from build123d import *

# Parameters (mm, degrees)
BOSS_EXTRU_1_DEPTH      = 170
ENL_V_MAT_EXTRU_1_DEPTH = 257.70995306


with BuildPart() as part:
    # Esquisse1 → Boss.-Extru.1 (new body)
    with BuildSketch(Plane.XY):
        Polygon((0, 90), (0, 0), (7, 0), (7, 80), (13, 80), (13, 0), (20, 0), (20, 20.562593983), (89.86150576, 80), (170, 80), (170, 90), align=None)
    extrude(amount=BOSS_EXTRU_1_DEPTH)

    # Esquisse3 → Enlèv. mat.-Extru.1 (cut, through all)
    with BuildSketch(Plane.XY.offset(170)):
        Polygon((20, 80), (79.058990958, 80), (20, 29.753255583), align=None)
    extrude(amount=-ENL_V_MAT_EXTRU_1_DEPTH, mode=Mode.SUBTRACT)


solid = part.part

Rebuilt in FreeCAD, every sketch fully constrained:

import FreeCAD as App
import Part
import Sketcher
from FreeCAD import Vector

doc = App.newDocument("Part")
body = doc.addObject("PartDesign::Body", "Body")

# Sketch on XY plane
sketch1 = body.newObject("Sketcher::SketchObject", "Sketch")
sketch1.AttachmentSupport = (doc.getObject("XY_Plane"), [""])
sketch1.MapMode = "FlatFace"
sketch1.addGeometry(Part.LineSegment(Vector(0, 90, 0), Vector(0, 0, 0)), False)
sketch1.addGeometry(Part.LineSegment(Vector(0, 0, 0), Vector(7, 0, 0)), False)
sketch1.addGeometry(Part.LineSegment(Vector(7, 0, 0), Vector(7, 80, 0)), False)
sketch1.addGeometry(Part.LineSegment(Vector(7, 80, 0), Vector(13, 80, 0)), False)
sketch1.addGeometry(Part.LineSegment(Vector(13, 80, 0), Vector(13, 0, 0)), False)
sketch1.addGeometry(Part.LineSegment(Vector(13, 0, 0), Vector(20, 0, 0)), False)
sketch1.addGeometry(Part.LineSegment(Vector(20, 0, 0), Vector(20, 21, 0)), False)
sketch1.addGeometry(Part.LineSegment(Vector(20, 21, 0), Vector(90, 80, 0)), False)
sketch1.addGeometry(Part.LineSegment(Vector(90, 80, 0), Vector(170, 80, 0)), False)
sketch1.addGeometry(Part.LineSegment(Vector(170, 80, 0), Vector(170, 90, 0)), False)
sketch1.addGeometry(Part.LineSegment(Vector(170, 90, 0), Vector(0, 90, 0)), False)
sketch1.addConstraint(Sketcher.Constraint("Coincident", 0, 2, 1, 1))
sketch1.addConstraint(Sketcher.Constraint("Coincident", 1, 2, 2, 1))
sketch1.addConstraint(Sketcher.Constraint("Coincident", 2, 2, 3, 1))
sketch1.addConstraint(Sketcher.Constraint("Coincident", 3, 2, 4, 1))
sketch1.addConstraint(Sketcher.Constraint("Coincident", 4, 2, 5, 1))
sketch1.addConstraint(Sketcher.Constraint("Coincident", 5, 2, 6, 1))
sketch1.addConstraint(Sketcher.Constraint("Coincident", 6, 2, 7, 1))
sketch1.addConstraint(Sketcher.Constraint("Coincident", 7, 2, 8, 1))
sketch1.addConstraint(Sketcher.Constraint("Coincident", 8, 2, 9, 1))
sketch1.addConstraint(Sketcher.Constraint("Coincident", 9, 2, 10, 1))
sketch1.addConstraint(Sketcher.Constraint("Coincident", 10, 2, 0, 1))
sketch1.addConstraint(Sketcher.Constraint("Vertical", 0))
sketch1.addConstraint(Sketcher.Constraint("Horizontal", 1))
sketch1.addConstraint(Sketcher.Constraint("Vertical", 2))
sketch1.addConstraint(Sketcher.Constraint("Horizontal", 3))
sketch1.addConstraint(Sketcher.Constraint("Vertical", 4))
sketch1.addConstraint(Sketcher.Constraint("Horizontal", 5))
sketch1.addConstraint(Sketcher.Constraint("Vertical", 6))
sketch1.addConstraint(Sketcher.Constraint("Horizontal", 8))
sketch1.addConstraint(Sketcher.Constraint("Vertical", 9))
sketch1.addConstraint(Sketcher.Constraint("Horizontal", 10))
sketch1.addConstraint(Sketcher.Constraint("Coincident", 0, 2, -1, 1))
sketch1.addConstraint(Sketcher.Constraint("PointOnObject", 4, 2, -1))
sketch1.addConstraint(Sketcher.Constraint("Horizontal", 3, 2, 7, 2))
sketch1.addConstraint(Sketcher.Constraint("Equal", 1, 5))
sketch1.addConstraint(Sketcher.Constraint("DistanceX", 1, 1, 1, 2, 7.0))
sketch1.addConstraint(Sketcher.Constraint("DistanceX", 3, 1, 3, 2, 6.0))
sketch1.addConstraint(Sketcher.Constraint("DistanceX", 10, 2, 10, 1, 170.0))
sketch1.addConstraint(Sketcher.Constraint("DistanceY", 0, 2, 0, 1, 90.0))
sketch1.addConstraint(Sketcher.Constraint("DistanceY", 2, 1, 2, 2, 80.0))
sketch1.addConstraint(Sketcher.Constraint("Distance", 7, 91.72478))
sketch1.addConstraint(Sketcher.Constraint("DistanceX", 8, 1, 8, 2, 80.138494))
pad1 = body.newObject("PartDesign::Pad", "Pad")
pad1.Profile = sketch1
pad1.Length = 170

# Sketch on XY plane
sketch2 = body.newObject("Sketcher::SketchObject", "Sketch001")
sketch2.AttachmentSupport = (doc.getObject("XY_Plane"), [""])
sketch2.MapMode = "FlatFace"
sketch2.AttachmentOffset = App.Placement(Vector(0, 0, 170), App.Rotation())
sketch2.addGeometry(Part.LineSegment(Vector(79, 80, 0), Vector(20, 80, 0)), False)
sketch2.addGeometry(Part.LineSegment(Vector(20, 80, 0), Vector(20, 30, 0)), False)
sketch2.addGeometry(Part.LineSegment(Vector(20, 30, 0), Vector(79, 80, 0)), False)
sketch2.addConstraint(Sketcher.Constraint("Coincident", 0, 2, 1, 1))
sketch2.addConstraint(Sketcher.Constraint("Coincident", 1, 2, 2, 1))
sketch2.addConstraint(Sketcher.Constraint("Coincident", 2, 2, 0, 1))
sketch2.addConstraint(Sketcher.Constraint("Horizontal", 0))
sketch2.addConstraint(Sketcher.Constraint("Vertical", 1))
sketch2.addConstraint(Sketcher.Constraint("DistanceX", -1, 1, 0, 2, 20.0))
sketch2.addConstraint(Sketcher.Constraint("DistanceY", -1, 1, 0, 2, 80.0))
sketch2.addConstraint(Sketcher.Constraint("Distance", 2, 77.5416))
sketch2.addConstraint(Sketcher.Constraint("DistanceX", 0, 2, 0, 1, 59.058991))
pocket1 = body.newObject("PartDesign::Pocket", "Pocket")
pocket1.Profile = sketch2
pocket1.Type = "ThroughAll"

doc.recompute()
